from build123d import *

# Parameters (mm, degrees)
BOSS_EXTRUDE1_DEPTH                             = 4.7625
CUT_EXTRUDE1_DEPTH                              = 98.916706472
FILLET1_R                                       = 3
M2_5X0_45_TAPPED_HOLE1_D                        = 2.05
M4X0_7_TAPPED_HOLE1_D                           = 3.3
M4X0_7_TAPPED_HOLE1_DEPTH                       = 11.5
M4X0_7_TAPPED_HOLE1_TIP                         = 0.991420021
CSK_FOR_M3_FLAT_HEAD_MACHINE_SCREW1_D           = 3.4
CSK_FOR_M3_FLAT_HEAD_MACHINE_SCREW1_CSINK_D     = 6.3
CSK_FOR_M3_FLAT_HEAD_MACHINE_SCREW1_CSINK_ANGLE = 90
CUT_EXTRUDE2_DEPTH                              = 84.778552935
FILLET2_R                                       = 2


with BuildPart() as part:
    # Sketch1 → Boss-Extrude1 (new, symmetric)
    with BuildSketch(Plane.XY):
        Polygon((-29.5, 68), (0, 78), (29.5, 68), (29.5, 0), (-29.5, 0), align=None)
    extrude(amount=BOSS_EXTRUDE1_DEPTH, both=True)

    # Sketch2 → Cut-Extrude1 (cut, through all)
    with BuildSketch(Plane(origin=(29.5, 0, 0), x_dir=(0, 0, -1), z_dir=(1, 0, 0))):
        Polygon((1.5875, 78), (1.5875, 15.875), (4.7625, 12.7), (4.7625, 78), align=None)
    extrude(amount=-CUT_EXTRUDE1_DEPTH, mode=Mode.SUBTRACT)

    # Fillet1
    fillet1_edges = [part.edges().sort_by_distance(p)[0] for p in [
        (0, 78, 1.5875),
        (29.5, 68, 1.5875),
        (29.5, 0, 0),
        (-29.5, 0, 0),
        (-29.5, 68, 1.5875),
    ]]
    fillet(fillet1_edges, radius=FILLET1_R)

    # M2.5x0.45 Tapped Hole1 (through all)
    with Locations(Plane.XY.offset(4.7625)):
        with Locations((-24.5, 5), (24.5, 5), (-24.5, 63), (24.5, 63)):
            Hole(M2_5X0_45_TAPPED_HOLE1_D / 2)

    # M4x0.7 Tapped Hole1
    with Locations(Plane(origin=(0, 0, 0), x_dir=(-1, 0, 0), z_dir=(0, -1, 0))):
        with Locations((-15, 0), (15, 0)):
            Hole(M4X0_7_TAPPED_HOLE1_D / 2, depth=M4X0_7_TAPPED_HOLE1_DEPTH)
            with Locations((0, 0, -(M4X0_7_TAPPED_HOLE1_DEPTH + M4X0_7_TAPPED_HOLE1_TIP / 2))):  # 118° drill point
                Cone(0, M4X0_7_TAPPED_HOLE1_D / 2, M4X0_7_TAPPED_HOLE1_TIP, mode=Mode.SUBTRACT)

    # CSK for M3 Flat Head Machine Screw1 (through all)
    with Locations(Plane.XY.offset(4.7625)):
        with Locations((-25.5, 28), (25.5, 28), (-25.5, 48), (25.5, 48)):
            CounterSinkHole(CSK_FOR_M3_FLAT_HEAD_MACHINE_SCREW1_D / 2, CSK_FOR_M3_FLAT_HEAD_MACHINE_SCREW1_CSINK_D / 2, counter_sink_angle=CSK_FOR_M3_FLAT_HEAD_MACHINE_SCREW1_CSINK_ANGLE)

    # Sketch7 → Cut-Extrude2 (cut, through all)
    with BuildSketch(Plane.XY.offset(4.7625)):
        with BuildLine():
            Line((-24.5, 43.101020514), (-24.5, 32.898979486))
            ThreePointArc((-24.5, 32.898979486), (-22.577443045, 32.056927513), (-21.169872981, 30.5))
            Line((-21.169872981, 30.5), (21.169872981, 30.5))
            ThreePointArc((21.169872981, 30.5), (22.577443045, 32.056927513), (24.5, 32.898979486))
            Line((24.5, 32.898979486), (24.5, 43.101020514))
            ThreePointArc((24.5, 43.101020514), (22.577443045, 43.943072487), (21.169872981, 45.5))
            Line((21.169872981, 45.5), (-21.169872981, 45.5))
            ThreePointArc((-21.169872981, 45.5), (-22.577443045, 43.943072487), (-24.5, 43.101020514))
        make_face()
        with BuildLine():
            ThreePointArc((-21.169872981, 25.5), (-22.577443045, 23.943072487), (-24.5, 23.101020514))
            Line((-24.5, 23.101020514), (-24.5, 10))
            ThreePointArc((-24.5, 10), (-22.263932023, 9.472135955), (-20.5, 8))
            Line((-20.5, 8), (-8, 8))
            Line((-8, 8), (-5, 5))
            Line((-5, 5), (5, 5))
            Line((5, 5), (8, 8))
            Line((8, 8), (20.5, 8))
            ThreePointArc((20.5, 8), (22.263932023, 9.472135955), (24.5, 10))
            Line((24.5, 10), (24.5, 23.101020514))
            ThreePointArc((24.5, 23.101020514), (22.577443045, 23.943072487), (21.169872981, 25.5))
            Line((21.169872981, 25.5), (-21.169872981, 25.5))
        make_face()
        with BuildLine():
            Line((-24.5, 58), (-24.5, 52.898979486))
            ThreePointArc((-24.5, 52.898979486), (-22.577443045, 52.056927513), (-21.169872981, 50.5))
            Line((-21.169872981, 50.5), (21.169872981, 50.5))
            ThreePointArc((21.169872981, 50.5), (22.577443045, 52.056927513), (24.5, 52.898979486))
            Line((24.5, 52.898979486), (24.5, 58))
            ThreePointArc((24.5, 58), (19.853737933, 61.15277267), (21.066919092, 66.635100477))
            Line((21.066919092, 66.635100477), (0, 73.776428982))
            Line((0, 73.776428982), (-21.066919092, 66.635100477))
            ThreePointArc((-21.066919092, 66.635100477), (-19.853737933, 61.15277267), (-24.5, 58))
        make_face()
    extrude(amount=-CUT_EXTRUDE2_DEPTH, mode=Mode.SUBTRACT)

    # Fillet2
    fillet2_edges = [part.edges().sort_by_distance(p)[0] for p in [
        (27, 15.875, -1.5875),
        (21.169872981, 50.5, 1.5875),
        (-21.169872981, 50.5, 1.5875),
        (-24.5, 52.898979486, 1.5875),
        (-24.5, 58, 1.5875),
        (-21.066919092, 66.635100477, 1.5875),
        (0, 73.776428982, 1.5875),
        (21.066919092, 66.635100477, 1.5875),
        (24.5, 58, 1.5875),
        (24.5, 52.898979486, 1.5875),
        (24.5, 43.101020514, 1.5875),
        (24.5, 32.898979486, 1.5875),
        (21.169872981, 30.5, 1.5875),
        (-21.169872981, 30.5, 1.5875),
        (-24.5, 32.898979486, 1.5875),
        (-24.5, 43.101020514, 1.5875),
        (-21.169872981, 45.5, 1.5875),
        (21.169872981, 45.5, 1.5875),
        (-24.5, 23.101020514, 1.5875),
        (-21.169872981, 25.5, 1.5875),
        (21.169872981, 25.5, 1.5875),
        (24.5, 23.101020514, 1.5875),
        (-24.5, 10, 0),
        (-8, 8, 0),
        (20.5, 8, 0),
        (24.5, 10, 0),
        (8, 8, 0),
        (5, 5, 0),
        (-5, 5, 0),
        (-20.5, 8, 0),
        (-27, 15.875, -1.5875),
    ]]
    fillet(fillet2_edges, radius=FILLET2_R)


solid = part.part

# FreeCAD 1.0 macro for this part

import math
import FreeCAD as App
import Part
import Sketcher

V = App.Vector
Q = App.Units.Quantity


def edges_at(feature, points):
    """Names of the edges that pass closest to the given points."""
    edges = feature.Shape.Edges
    near = lambda p: min(range(len(edges)), key=lambda i: edges[i].distToShape(Part.Vertex(*p))[0])
    return sorted({f"Edge{near(p) + 1}" for p in points})

doc = App.newDocument("Part")
params = doc.addObject("Spreadsheet::Sheet", "Params")
for row, (alias, value) in enumerate([
    ("sketch1_width", "59 mm"),
    ("sketch1_height", "68 mm"),
    ("pad1_length", "9.525 mm"),
    ("sketch2_width", "65.3 mm"),
    ("fillet_radius", "3 mm"),
    ("sketch3_diameter", "2.05 mm"),
    ("hole_diameter", "2.05 mm"),
    ("sketch4_diameter", "3.3 mm"),
    ("hole2_diameter", "3.3 mm"),
    ("hole2_depth", "11.5 mm"),
    ("sketch5_diameter", "3.4 mm"),
    ("hole3_diameter", "3.4 mm"),
    ("hole3_csink_diameter", "6.3 mm"),
    ("sketch6_radius", "5 mm"),
    ("sketch6_width", "10 mm"),
    ("sketch6_width2", "12.5 mm"),
    ("fillet2_radius", "2 mm"),
], start=1):
    params.set(f"A{row}", alias)
    params.set(f"B{row}", "=" + value)
    params.setAlias(f"B{row}", alias)

body = doc.addObject("PartDesign::Body", "Body")

# Sketch on XY plane
sketch1 = body.newObject("Sketcher::SketchObject", "Sketch")
sketch1.AttachmentSupport = (doc.getObject("XY_Plane"), [""])
sketch1.MapMode = "FlatFace"
sketch1.addGeometry([
    Part.LineSegment(V(0, 78, 0), V(-30, 68, 0)),  # 0
    Part.LineSegment(V(-30, 68, 0), V(-30, 0, 0)),  # 1
    Part.LineSegment(V(-30, 0, 0), V(30, 0, 0)),  # 2
    Part.LineSegment(V(30, 0, 0), V(30, 68, 0)),  # 3
    Part.LineSegment(V(30, 68, 0), V(0, 78, 0)),  # 4
], False)
sketch1.addConstraint([
    Sketcher.Constraint("Coincident", 0, 2, 1, 1),
    Sketcher.Constraint("Coincident", 1, 2, 2, 1),
    Sketcher.Constraint("Coincident", 2, 2, 3, 1),
    Sketcher.Constraint("Coincident", 3, 2, 4, 1),
    Sketcher.Constraint("Coincident", 4, 2, 0, 1),
    Sketcher.Constraint("Vertical", 1),
    Sketcher.Constraint("Horizontal", 2),
    Sketcher.Constraint("Vertical", 3),
    Sketcher.Constraint("Symmetric", 1, 2, 2, 2, -1, 1),
    Sketcher.Constraint("PointOnObject", 4, 2, -2),
    Sketcher.Constraint("Horizontal", 0, 2, 3, 2),
    Sketcher.Constraint("DistanceX", 2, 1, 2, 2, Q("59 mm")),
    Sketcher.Constraint("DistanceY", 1, 2, 1, 1, Q("68 mm")),
    Sketcher.Constraint("DistanceY", -1, 1, 4, 2, Q("78 mm")),
])
sketch1.setExpression("Constraints[11]", "Params.sketch1_width")
sketch1.setExpression("Constraints[12]", "Params.sketch1_height")
pad1 = body.newObject("PartDesign::Pad", "Pad")
pad1.Profile = sketch1
pad1.setExpression("Length", "Params.pad1_length")
pad1.Midplane = True

# Sketch on YZ plane
sketch2 = body.newObject("Sketcher::SketchObject", "Sketch001")
sketch2.AttachmentSupport = (doc.getObject("YZ_Plane"), [""])
sketch2.MapMode = "FlatFace"
sketch2.AttachmentOffset = App.Placement(V(0, 0, 29.5), App.Rotation())
sketch2.addGeometry([
    Part.LineSegment(V(78, -1.6, 0), V(15.9, -1.6, 0)),
    Part.LineSegment(V(15.9, -1.6, 0), V(12.7, -4.8, 0)),
    Part.LineSegment(V(12.7, -4.8, 0), V(78, -4.8, 0)),
    Part.LineSegment(V(78, -4.8, 0), V(78, -1.6, 0)),
], False)
sketch2.addConstraint([
    Sketcher.Constraint("Coincident", 0, 2, 1, 1),
    Sketcher.Constraint("Coincident", 1, 2, 2, 1),
    Sketcher.Constraint("Coincident", 2, 2, 3, 1),
    Sketcher.Constraint("Coincident", 3, 2, 0, 1),
    Sketcher.Constraint("Horizontal", 0),
    Sketcher.Constraint("Horizontal", 2),
    Sketcher.Constraint("Vertical", 3),
    Sketcher.Constraint("Angle", 1, Q("-135 deg")),
    Sketcher.Constraint("DistanceX", 2, 1, 2, 2, Q("65.3 mm")),
    Sketcher.Constraint("DistanceX", -1, 1, 2, 2, Q("78 mm")),
    Sketcher.Constraint("DistanceX", 0, 2, 0, 1, Q("62.125 mm")),
    Sketcher.Constraint("DistanceY", 0, 2, -1, 1, Q("1.5875 mm")),
])
sketch2.setExpression("Constraints[8]", "Params.sketch2_width")
pocket1 = body.newObject("PartDesign::Pocket", "Pocket")
pocket1.Profile = sketch2
pocket1.Type = "ThroughAll"
doc.recompute()

fillet = body.newObject("PartDesign::Fillet", "Fillet")
fillet.Base = (pocket1, edges_at(pocket1, [
    (0, 78, 1.587),
    (29.5, 68, 1.587),
    (29.5, 0, 0),
    (-29.5, 0, 0),
    (-29.5, 68, 1.587),
]))
fillet.setExpression("Radius", "Params.fillet_radius")

# Sketch on XY plane
sketch3 = body.newObject("Sketcher::SketchObject", "Sketch002")
sketch3.AttachmentSupport = (doc.getObject("XY_Plane"), [""])
sketch3.MapMode = "FlatFace"
sketch3.AttachmentOffset = App.Placement(V(0, 0, 4.7625), App.Rotation())
sketch3.addGeometry([
    Part.Circle(V(-24.5, 5, 0), V(0, 0, 1), 1),
    Part.Circle(V(24.5, 5, 0), V(0, 0, 1), 1),
    Part.Circle(V(-24.5, 63, 0), V(0, 0, 1), 1),
    Part.Circle(V(24.5, 63, 0), V(0, 0, 1), 1),
], False)
sketch3.addConstraint([
    Sketcher.Constraint("Equal", 0, 1),
    Sketcher.Constraint("Equal", 1, 2),
    Sketcher.Constraint("Equal", 2, 3),
    Sketcher.Constraint("Symmetric", 0, 3, 1, 3, -2),
    Sketcher.Constraint("Symmetric", 2, 3, 3, 3, -2),
    Sketcher.Constraint("Vertical", 0, 3, 2, 3),
    Sketcher.Constraint("Diameter", 0, Q("2.05 mm")),
    Sketcher.Constraint("DistanceY", -1, 1, 0, 3, Q("5 mm")),
    Sketcher.Constraint("DistanceY", -1, 1, 2, 3, Q("63 mm")),
    Sketcher.Constraint("DistanceX", 0, 3, 1, 3, Q("49 mm")),
])
sketch3.setExpression("Constraints[6]", "Params.sketch3_diameter")
doc.recompute()
hole = body.newObject("PartDesign::Hole", "Hole")
hole.Profile = sketch3
hole.ThreadType = "None"
hole.setExpression("Diameter", "Params.hole_diameter")
hole.DepthType = "ThroughAll"

# Sketch on XZ plane
sketch4 = body.newObject("Sketcher::SketchObject", "Sketch003")
sketch4.AttachmentSupport = (doc.getObject("XZ_Plane"), [""])
sketch4.MapMode = "FlatFace"
sketch4.addGeometry([
    Part.Circle(V(15, 0, 0), V(0, 0, 1), 1.6),
    Part.Circle(V(-15, 0, 0), V(0, 0, 1), 1.6),
], False)
sketch4.addConstraint([
    Sketcher.Constraint("Equal", 0, 1),
    Sketcher.Constraint("Symmetric", 0, 3, 1, 3, -1, 1),
    Sketcher.Constraint("PointOnObject", 0, 3, -1),
    Sketcher.Constraint("Diameter", 0, Q("3.3 mm")),
    Sketcher.Constraint("DistanceX", -1, 1, 0, 3, Q("15 mm")),
])
sketch4.setExpression("Constraints[3]", "Params.sketch4_diameter")
doc.recompute()
hole2 = body.newObject("PartDesign::Hole", "Hole001")
hole2.Profile = sketch4
hole2.ThreadType = "None"
hole2.setExpression("Diameter", "Params.hole2_diameter")
hole2.DepthType = "Dimension"
hole2.setExpression("Depth", "Params.hole2_depth")
hole2.DrillPoint = "Angled"
hole2.DrillPointAngle = 118

# Sketch on XY plane
sketch5 = body.newObject("Sketcher::SketchObject", "Sketch004")
sketch5.AttachmentSupport = (doc.getObject("XY_Plane"), [""])
sketch5.MapMode = "FlatFace"
sketch5.AttachmentOffset = App.Placement(V(0, 0, 4.7625), App.Rotation())
sketch5.addGeometry([
    Part.Circle(V(-25.5, 28, 0), V(0, 0, 1), 1.7),
    Part.Circle(V(25.5, 28, 0), V(0, 0, 1), 1.7),
    Part.Circle(V(-25.5, 48, 0), V(0, 0, 1), 1.7),
    Part.Circle(V(25.5, 48, 0), V(0, 0, 1), 1.7),
], False)
sketch5.addConstraint([
    Sketcher.Constraint("Equal", 0, 1),
    Sketcher.Constraint("Equal", 1, 2),
    Sketcher.Constraint("Equal", 2, 3),
    Sketcher.Constraint("Symmetric", 0, 3, 1, 3, -2),
    Sketcher.Constraint("Symmetric", 2, 3, 3, 3, -2),
    Sketcher.Constraint("Vertical", 0, 3, 2, 3),
    Sketcher.Constraint("Diameter", 0, Q("3.4 mm")),
    Sketcher.Constraint("DistanceY", -1, 1, 0, 3, Q("28 mm")),
    Sketcher.Constraint("DistanceY", -1, 1, 2, 3, Q("48 mm")),
    Sketcher.Constraint("DistanceX", 0, 3, 1, 3, Q("51 mm")),
])
sketch5.setExpression("Constraints[6]", "Params.sketch5_diameter")
doc.recompute()
hole3 = body.newObject("PartDesign::Hole", "Hole002")
hole3.Profile = sketch5
hole3.ThreadType = "None"
hole3.setExpression("Diameter", "Params.hole3_diameter")
hole3.DepthType = "ThroughAll"
hole3.HoleCutType = "Countersink"
hole3.setExpression("HoleCutDiameter", "Params.hole3_csink_diameter")
hole3.HoleCutCountersinkAngle = 90

# Sketch on XY plane
sketch6 = body.newObject("Sketcher::SketchObject", "Sketch005")
sketch6.AttachmentSupport = (doc.getObject("XY_Plane"), [""])
sketch6.MapMode = "FlatFace"
sketch6.AttachmentOffset = App.Placement(V(0, 0, 4.7625), App.Rotation())
sketch6.addGeometry([
    Part.LineSegment(V(-24.5, 43.1, 0), V(-24.5, 32.9, 0)),  # 0
    Part.ArcOfCircle(Part.Circle(V(-25.5, 28, 0), V(0, 0, 1), 5), math.radians(30), math.radians(78)),  # 1
    Part.LineSegment(V(-21.2, 30.5, 0), V(21.2, 30.5, 0)),  # 2
    Part.ArcOfCircle(Part.Circle(V(25.5, 28, 0), V(0, 0, 1), 5), math.radians(102), math.radians(150)),  # 3
    Part.LineSegment(V(24.5, 32.9, 0), V(24.5, 43.1, 0)),  # 4
    Part.ArcOfCircle(Part.Circle(V(25.5, 48, 0), V(0, 0, 1), 5), math.radians(-150), math.radians(-102)),  # 5
    Part.LineSegment(V(21.2, 45.5, 0), V(-21.2, 45.5, 0)),  # 6
    Part.ArcOfCircle(Part.Circle(V(-25.5, 48, 0), V(0, 0, 1), 5), math.radians(-78), math.radians(-30)),  # 7
    Part.ArcOfCircle(Part.Circle(V(-25.5, 28, 0), V(0, 0, 1), 5), math.radians(-78), math.radians(-30)),  # 8
    Part.LineSegment(V(-24.5, 23.1, 0), V(-24.5, 10, 0)),  # 9
    Part.ArcOfCircle(Part.Circle(V(-24.5, 5, 0), V(0, 0, 1), 5), math.radians(37), math.radians(90)),  # 10
    Part.LineSegment(V(-20.5, 8, 0), V(-8, 8, 0)),  # 11
    Part.LineSegment(V(-8, 8, 0), V(-5, 5, 0)),  # 12
    Part.LineSegment(V(-5, 5, 0), V(5, 5, 0)),  # 13
    Part.LineSegment(V(5, 5, 0), V(8, 8, 0)),  # 14
    Part.LineSegment(V(8, 8, 0), V(20.5, 8, 0)),  # 15
    Part.ArcOfCircle(Part.Circle(V(24.5, 5, 0), V(0, 0, 1), 5), math.radians(90), math.radians(143)),  # 16
    Part.LineSegment(V(24.5, 10, 0), V(24.5, 23.1, 0)),  # 17
    Part.ArcOfCircle(Part.Circle(V(25.5, 28, 0), V(0, 0, 1), 5), math.radians(-150), math.radians(-102)),  # 18
    Part.LineSegment(V(21.2, 25.5, 0), V(-21.2, 25.5, 0)),  # 19
    Part.LineSegment(V(-24.5, 58, 0), V(-24.5, 52.9, 0)),  # 20
    Part.ArcOfCircle(Part.Circle(V(-25.5, 48, 0), V(0, 0, 1), 5), math.radians(30), math.radians(78)),  # 21
    Part.LineSegment(V(-21.2, 50.5, 0), V(21.2, 50.5, 0)),  # 22
    Part.ArcOfCircle(Part.Circle(V(25.5, 48, 0), V(0, 0, 1), 5), math.radians(102), math.radians(150)),  # 23
    Part.LineSegment(V(24.5, 52.9, 0), V(24.5, 58, 0)),  # 24
    Part.ArcOfCircle(Part.Circle(V(24.5, 63, 0), V(0, 0, 1), 5), math.radians(133), math.radians(270)),  # 25
    Part.LineSegment(V(21.1, 66.6, 0), V(0, 73.8, 0)),  # 26
    Part.LineSegment(V(0, 73.8, 0), V(-21.1, 66.6, 0)),  # 27
    Part.ArcOfCircle(Part.Circle(V(-24.5, 63, 0), V(0, 0, 1), 5), math.radians(-90), math.radians(47)),  # 28
], False)
sketch6.addConstraint([
    Sketcher.Constraint("Coincident", 0, 2, 1, 2),
    Sketcher.Constraint("Coincident", 1, 1, 2, 1),
    Sketcher.Constraint("Coincident", 2, 2, 3, 2),
    Sketcher.Constraint("Coincident", 3, 1, 4, 1),
    Sketcher.Constraint("Coincident", 4, 2, 5, 2),
    Sketcher.Constraint("Coincident", 5, 1, 6, 1),
    Sketcher.Constraint("Coincident", 6, 2, 7, 2),
    Sketcher.Constraint("Coincident", 7, 1, 0, 1),
    Sketcher.Constraint("Coincident", 8, 1, 9, 1),
    Sketcher.Constraint("Coincident", 9, 2, 10, 2),
    Sketcher.Constraint("Coincident", 10, 1, 11, 1),
    Sketcher.Constraint("Coincident", 11, 2, 12, 1),
    Sketcher.Constraint("Coincident", 12, 2, 13, 1),
    Sketcher.Constraint("Coincident", 13, 2, 14, 1),
    Sketcher.Constraint("Coincident", 14, 2, 15, 1),
    Sketcher.Constraint("Coincident", 15, 2, 16, 2),
    Sketcher.Constraint("Coincident", 16, 1, 17, 1),
    Sketcher.Constraint("Coincident", 17, 2, 18, 2),
    Sketcher.Constraint("Coincident", 18, 1, 19, 1),
    Sketcher.Constraint("Coincident", 19, 2, 8, 2),
    Sketcher.Constraint("Coincident", 20, 2, 21, 2),
    Sketcher.Constraint("Coincident", 21, 1, 22, 1),
    Sketcher.Constraint("Coincident", 22, 2, 23, 2),
    Sketcher.Constraint("Coincident", 23, 1, 24, 1),
    Sketcher.Constraint("Coincident", 24, 2, 25, 2),
    Sketcher.Constraint("Coincident", 25, 1, 26, 1),
    Sketcher.Constraint("Coincident", 26, 2, 27, 1),
    Sketcher.Constraint("Coincident", 27, 2, 28, 2),
    Sketcher.Constraint("Coincident", 28, 1, 20, 1),
    Sketcher.Constraint("Vertical", 0),
    Sketcher.Constraint("Horizontal", 2),
    Sketcher.Constraint("Vertical", 4),
    Sketcher.Constraint("Horizontal", 6),
    Sketcher.Constraint("Vertical", 9),
    Sketcher.Constraint("Horizontal", 11),
    Sketcher.Constraint("Horizontal", 13),
    Sketcher.Constraint("Horizontal", 15),
    Sketcher.Constraint("Vertical", 17),
    Sketcher.Constraint("Horizontal", 19),
    Sketcher.Constraint("Vertical", 20),
    Sketcher.Constraint("Horizontal", 22),
    Sketcher.Constraint("Vertical", 24),
    Sketcher.Constraint("Coincident", 8, 3, 1, 3),
    Sketcher.Constraint("Coincident", 18, 3, 3, 3),
    Sketcher.Constraint("Coincident", 21, 3, 7, 3),
    Sketcher.Constraint("Coincident", 23, 3, 5, 3),
    Sketcher.Constraint("Equal", 1, 3),
    Sketcher.Constraint("Equal", 3, 5),
    Sketcher.Constraint("Equal", 5, 7),
    Sketcher.Constraint("Equal", 7, 8),
    Sketcher.Constraint("Equal", 8, 10),
    Sketcher.Constraint("Equal", 10, 16),
    Sketcher.Constraint("Equal", 16, 18),
    Sketcher.Constraint("Equal", 18, 21),
    Sketcher.Constraint("Equal", 21, 23),
    Sketcher.Constraint("Equal", 23, 25),
    Sketcher.Constraint("Equal", 25, 28),
    Sketcher.Constraint("Symmetric", 1, 3, 3, 3, -2),
    Sketcher.Constraint("Symmetric", 5, 3, 7, 3, -2),
    Sketcher.Constraint("Symmetric", 10, 3, 16, 3, -2),
    Sketcher.Constraint("Symmetric", 25, 3, 28, 3, -2),
    Sketcher.Constraint("Symmetric", 11, 2, 14, 2, -2),
    Sketcher.Constraint("PointOnObject", 26, 2, -2),
    Sketcher.Constraint("Perpendicular", 12, 14),
    Sketcher.Constraint("Horizontal", 0, 2, 3, 1),
    Sketcher.Constraint("Horizontal", 16, 3, 12, 2),
    Sketcher.Constraint("Horizontal", 8, 1, 17, 2),
    Sketcher.Constraint("Horizontal", 20, 2, 23, 1),
    Sketcher.Constraint("Horizontal", 25, 1, 27, 2),
    Sketcher.Constraint("Vertical", 3, 3, 5, 3),
    Sketcher.Constraint("Vertical", 16, 3, 25, 3),
    Sketcher.Constraint("Vertical", 28, 3, 0, 2),
    Sketcher.Constraint("Vertical", 2, 2, 5, 1),
    Sketcher.Constraint("Vertical", 7, 1, 8, 1),
    Sketcher.Constraint("Vertical", 5, 1, 18, 1),
    Sketcher.Constraint("Vertical", 9, 2, 20, 2),
    Sketcher.Constraint("Vertical", 19, 2, 21, 1),
    Sketcher.Constraint("Equal", 12, 14),
    Sketcher.Constraint("Radius", 1, Q("5 mm")),
    Sketcher.Constraint("DistanceX", 13, 1, 13, 2, Q("10 mm")),
    Sketcher.Constraint("DistanceX", 11, 1, 11, 2, Q("12.5 mm")),
    Sketcher.Constraint("DistanceY", -1, 1, 1, 3, Q("28 mm")),
    Sketcher.Constraint("DistanceY", -1, 1, 5, 3, Q("48 mm")),
    Sketcher.Constraint("DistanceY", -1, 1, 10, 3, Q("5 mm")),
    Sketcher.Constraint("DistanceY", -1, 1, 25, 3, Q("63 mm")),
    Sketcher.Constraint("DistanceY", -1, 1, 10, 1, Q("8 mm")),
    Sketcher.Constraint("DistanceX", 1, 3, 3, 3, Q("51 mm")),
    Sketcher.Constraint("DistanceY", 2, 2, 5, 1, Q("15 mm")),
    Sketcher.Constraint("DistanceY", -1, 1, 25, 1, Q("66.6351 mm")),
    Sketcher.Constraint("DistanceY", -1, 1, 26, 2, Q("73.776429 mm")),
])
sketch6.setExpression("Constraints[78]", "Params.sketch6_radius")
sketch6.setExpression("Constraints[79]", "Params.sketch6_width")
sketch6.setExpression("Constraints[80]", "Params.sketch6_width2")
pocket2 = body.newObject("PartDesign::Pocket", "Pocket001")
pocket2.Profile = sketch6
pocket2.Type = "ThroughAll"
doc.recompute()

fillet2 = body.newObject("PartDesign::Fillet", "Fillet001")
fillet2.Base = (pocket2, edges_at(pocket2, [
    (27, 15.875, -1.587),
    (21.17, 50.5, 1.587),
    (-21.17, 50.5, 1.587),
    (-24.5, 52.899, 1.587),
    (-24.5, 58, 1.587),
    (-21.067, 66.635, 1.587),
    (0, 73.776, 1.587),
    (21.067, 66.635, 1.587),
    (24.5, 58, 1.587),
    (24.5, 52.899, 1.587),
    (24.5, 43.101, 1.587),
    (24.5, 32.899, 1.587),
    (21.17, 30.5, 1.587),
    (-21.17, 30.5, 1.587),
    (-24.5, 32.899, 1.587),
    (-24.5, 43.101, 1.587),
    (-21.17, 45.5, 1.587),
    (21.17, 45.5, 1.587),
    (-24.5, 23.101, 1.587),
    (-21.17, 25.5, 1.587),
    (21.17, 25.5, 1.587),
    (24.5, 23.101, 1.587),
    (-24.5, 10, 0),
    (-8, 8, 0),
    (20.5, 8, 0),
    (24.5, 10, 0),
    (8, 8, 0),
    (5, 5, 0),
    (-5, 5, 0),
    (-20.5, 8, 0),
    (-27, 15.875, -1.587),
]))
fillet2.setExpression("Radius", "Params.fillet2_radius")

doc.recompute()
